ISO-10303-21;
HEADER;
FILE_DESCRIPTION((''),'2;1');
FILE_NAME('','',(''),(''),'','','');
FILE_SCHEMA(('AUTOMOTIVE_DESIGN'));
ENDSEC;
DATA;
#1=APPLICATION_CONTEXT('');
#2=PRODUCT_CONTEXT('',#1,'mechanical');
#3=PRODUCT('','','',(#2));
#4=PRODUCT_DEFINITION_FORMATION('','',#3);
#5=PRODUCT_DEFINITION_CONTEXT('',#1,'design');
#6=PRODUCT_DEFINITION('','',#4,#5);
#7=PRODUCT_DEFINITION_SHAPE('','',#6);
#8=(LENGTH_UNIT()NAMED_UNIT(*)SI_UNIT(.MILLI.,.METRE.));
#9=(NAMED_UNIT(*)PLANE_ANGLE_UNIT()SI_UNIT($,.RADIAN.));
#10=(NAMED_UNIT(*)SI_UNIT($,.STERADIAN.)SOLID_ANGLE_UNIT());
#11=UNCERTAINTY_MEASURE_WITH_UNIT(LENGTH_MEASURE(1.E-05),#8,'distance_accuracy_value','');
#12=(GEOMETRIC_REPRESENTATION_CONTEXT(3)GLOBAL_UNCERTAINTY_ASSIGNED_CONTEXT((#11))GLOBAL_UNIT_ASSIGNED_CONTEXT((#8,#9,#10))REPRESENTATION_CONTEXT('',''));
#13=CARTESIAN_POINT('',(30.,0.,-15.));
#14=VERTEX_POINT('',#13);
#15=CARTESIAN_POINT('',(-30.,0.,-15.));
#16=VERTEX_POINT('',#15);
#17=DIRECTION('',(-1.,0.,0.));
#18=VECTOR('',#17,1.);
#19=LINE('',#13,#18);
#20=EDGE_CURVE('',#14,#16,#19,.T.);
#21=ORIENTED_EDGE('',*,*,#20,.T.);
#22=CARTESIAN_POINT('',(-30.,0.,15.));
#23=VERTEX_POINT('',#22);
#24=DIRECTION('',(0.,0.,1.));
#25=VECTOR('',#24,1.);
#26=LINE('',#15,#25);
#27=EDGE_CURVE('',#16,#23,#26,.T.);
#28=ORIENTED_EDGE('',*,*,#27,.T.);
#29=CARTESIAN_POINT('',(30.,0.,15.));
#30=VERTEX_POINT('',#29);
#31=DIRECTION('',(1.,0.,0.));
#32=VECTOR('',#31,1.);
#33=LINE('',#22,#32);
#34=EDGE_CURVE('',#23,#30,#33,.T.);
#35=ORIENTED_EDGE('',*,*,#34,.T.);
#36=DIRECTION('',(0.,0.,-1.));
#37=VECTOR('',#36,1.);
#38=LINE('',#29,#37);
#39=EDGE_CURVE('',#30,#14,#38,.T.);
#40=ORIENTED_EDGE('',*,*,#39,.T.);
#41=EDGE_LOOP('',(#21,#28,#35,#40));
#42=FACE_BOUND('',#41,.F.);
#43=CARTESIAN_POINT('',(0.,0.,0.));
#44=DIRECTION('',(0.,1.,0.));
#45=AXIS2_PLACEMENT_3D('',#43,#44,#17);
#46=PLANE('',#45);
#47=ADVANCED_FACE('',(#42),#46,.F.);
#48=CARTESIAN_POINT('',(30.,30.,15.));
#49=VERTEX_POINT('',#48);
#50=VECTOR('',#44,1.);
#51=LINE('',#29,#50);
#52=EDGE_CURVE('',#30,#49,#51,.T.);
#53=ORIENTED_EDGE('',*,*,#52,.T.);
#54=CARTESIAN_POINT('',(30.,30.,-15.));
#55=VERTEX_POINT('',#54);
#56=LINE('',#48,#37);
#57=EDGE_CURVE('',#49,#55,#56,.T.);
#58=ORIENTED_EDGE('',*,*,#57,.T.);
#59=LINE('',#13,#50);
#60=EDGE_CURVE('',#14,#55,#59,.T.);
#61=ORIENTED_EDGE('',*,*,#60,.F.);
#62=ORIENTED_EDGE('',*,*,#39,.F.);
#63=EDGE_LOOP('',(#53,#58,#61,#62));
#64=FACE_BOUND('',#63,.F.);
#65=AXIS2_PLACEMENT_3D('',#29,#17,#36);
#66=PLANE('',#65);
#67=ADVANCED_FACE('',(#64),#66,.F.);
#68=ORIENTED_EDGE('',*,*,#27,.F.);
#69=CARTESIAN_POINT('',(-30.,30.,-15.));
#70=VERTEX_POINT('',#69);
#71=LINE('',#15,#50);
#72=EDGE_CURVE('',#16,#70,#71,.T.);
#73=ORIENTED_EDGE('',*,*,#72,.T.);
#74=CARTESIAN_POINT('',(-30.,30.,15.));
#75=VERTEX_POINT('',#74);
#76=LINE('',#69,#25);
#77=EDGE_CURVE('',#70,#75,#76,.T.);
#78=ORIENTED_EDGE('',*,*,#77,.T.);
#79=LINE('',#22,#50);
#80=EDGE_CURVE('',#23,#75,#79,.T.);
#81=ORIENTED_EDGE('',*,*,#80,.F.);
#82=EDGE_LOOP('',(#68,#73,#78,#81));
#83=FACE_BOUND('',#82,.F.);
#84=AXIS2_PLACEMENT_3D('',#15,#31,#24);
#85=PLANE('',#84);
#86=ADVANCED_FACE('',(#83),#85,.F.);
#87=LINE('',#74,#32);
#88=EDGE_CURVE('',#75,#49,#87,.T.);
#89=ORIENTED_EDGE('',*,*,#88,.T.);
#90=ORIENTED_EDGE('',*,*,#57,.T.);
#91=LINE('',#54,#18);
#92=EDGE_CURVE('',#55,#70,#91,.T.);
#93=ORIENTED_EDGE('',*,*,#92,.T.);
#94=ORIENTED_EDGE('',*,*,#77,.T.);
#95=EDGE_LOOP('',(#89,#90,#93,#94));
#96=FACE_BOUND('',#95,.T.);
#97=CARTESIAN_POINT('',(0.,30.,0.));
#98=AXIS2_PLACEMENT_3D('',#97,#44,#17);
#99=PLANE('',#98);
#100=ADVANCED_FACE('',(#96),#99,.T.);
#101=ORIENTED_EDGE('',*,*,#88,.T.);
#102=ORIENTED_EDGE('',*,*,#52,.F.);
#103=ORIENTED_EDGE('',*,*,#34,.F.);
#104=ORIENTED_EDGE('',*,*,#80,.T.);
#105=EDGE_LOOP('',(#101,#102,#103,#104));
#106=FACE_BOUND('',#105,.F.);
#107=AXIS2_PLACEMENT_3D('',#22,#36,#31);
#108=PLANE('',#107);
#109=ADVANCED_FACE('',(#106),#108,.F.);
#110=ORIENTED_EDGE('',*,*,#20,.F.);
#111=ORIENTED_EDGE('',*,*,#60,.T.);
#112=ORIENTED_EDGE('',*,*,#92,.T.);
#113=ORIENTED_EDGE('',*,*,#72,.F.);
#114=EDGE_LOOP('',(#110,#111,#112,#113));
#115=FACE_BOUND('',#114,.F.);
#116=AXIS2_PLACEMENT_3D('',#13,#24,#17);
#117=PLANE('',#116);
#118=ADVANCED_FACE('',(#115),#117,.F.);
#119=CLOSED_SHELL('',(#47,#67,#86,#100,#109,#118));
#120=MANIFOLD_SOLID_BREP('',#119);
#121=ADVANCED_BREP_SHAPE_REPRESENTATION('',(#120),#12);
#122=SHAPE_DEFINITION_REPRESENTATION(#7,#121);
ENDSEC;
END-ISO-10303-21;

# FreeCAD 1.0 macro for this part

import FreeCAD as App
import Part
import Sketcher
from FreeCAD import Vector

doc = App.newDocument("Part")
body = doc.addObject("PartDesign::Body", "Body")

sketch1 = doc.addObject("Sketcher::SketchObject", "Sketch")
body.addObject(sketch1)
sketch1.AttachmentSupport = (doc.XZ_Plane, [""])
sketch1.MapMode = "FlatFace"
sketch1.addGeometry([
    Part.LineSegment(Vector(-30, -15, 0), Vector(-30, 15, 0)),
    Part.LineSegment(Vector(-30, 15, 0), Vector(30, 15, 0)),
    Part.LineSegment(Vector(30, 15, 0), Vector(30, -15, 0)),
    Part.LineSegment(Vector(30, -15, 0), Vector(-30, -15, 0)),
], False)
sketch1.addConstraint([
    Sketcher.Constraint("Coincident", 0, 2, 1, 1),
    Sketcher.Constraint("Coincident", 1, 2, 2, 1),
    Sketcher.Constraint("Coincident", 2, 2, 3, 1),
    Sketcher.Constraint("Coincident", 3, 2, 0, 1),
    Sketcher.Constraint("Vertical", 0),
    Sketcher.Constraint("Horizontal", 1),
    Sketcher.Constraint("Vertical", 2),
    Sketcher.Constraint("Horizontal", 3),
    Sketcher.Constraint("Symmetric", 0, 2, 2, 2, -1, 1),
    Sketcher.Constraint("DistanceX", 1, 1, 1, 2, 60.0),
    Sketcher.Constraint("DistanceY", 0, 1, 0, 2, 30.0),
])
pad1 = doc.addObject("PartDesign::Pad", "Pad")
body.addObject(pad1)
pad1.Profile = sketch1
pad1.Length = 30
pad1.Reversed = True

doc.recompute()
